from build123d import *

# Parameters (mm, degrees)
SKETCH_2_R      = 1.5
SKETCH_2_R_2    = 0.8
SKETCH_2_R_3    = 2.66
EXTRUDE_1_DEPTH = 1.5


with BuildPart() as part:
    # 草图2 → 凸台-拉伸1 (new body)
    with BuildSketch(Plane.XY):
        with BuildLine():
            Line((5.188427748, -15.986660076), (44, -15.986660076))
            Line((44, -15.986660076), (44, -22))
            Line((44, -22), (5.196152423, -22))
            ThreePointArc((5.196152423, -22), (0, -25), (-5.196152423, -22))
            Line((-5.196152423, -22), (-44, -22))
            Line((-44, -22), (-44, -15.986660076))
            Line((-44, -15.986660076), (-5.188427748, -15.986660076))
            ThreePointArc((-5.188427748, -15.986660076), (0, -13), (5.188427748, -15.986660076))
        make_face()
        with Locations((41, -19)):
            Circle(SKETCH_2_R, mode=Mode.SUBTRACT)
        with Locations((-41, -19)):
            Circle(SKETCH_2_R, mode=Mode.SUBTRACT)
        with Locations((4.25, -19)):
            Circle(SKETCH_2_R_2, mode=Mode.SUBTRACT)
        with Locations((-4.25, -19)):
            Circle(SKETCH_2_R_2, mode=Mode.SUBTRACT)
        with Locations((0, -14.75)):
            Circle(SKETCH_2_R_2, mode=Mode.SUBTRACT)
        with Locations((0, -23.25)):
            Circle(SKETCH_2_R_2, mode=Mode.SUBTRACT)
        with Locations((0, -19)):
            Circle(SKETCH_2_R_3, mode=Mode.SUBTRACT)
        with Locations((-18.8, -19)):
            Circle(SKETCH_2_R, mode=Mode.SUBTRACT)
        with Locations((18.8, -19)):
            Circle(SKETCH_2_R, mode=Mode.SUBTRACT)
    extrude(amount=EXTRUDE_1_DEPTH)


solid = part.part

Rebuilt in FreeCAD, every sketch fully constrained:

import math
import FreeCAD as App
import Part
import Sketcher

V = App.Vector

doc = App.newDocument("Part")
body = doc.addObject("PartDesign::Body", "Body")

# Sketch on XY plane
sketch1 = body.newObject("Sketcher::SketchObject", "Sketch")
sketch1.AttachmentSupport = (doc.getObject("XY_Plane"), [""])
sketch1.MapMode = "FlatFace"
sketch1.addGeometry([
    Part.LineSegment(V(44, -16, 0), V(5.2, -16, 0)),  # 0
    Part.ArcOfCircle(Part.Circle(V(0, -19, 0), V(0, 0, 1), 6), math.radians(30), math.radians(150)),  # 1
    Part.LineSegment(V(-5.2, -16, 0), V(-44, -16, 0)),  # 2
    Part.LineSegment(V(-44, -16, 0), V(-44, -22, 0)),  # 3
    Part.LineSegment(V(-44, -22, 0), V(-5.2, -22, 0)),  # 4
    Part.ArcOfCircle(Part.Circle(V(0, -19, 0), V(0, 0, 1), 6), math.radians(-150), math.radians(-30)),  # 5
    Part.LineSegment(V(5.2, -22, 0), V(44, -22, 0)),  # 6
    Part.LineSegment(V(44, -22, 0), V(44, -16, 0)),  # 7
    Part.Circle(V(0, -23.2, 0), V(0, 0, 1), 0.8),  # 8
    Part.Circle(V(41, -19, 0), V(0, 0, 1), 1.5),  # 9
    Part.Circle(V(18.8, -19, 0), V(0, 0, 1), 1.5),  # 10
    Part.Circle(V(4.2, -19, 0), V(0, 0, 1), 0.8),  # 11
    Part.Circle(V(0, -19, 0), V(0, 0, 1), 2.7),  # 12
    Part.Circle(V(-4.2, -19, 0), V(0, 0, 1), 0.8),  # 13
    Part.Circle(V(-18.8, -19, 0), V(0, 0, 1), 1.5),  # 14
    Part.Circle(V(-41, -19, 0), V(0, 0, 1), 1.5),  # 15
    Part.Circle(V(0, -14.8, 0), V(0, 0, 1), 0.8),  # 16
], False)
sketch1.addConstraint([
    Sketcher.Constraint("Coincident", 0, 2, 1, 1),
    Sketcher.Constraint("Coincident", 1, 2, 2, 1),
    Sketcher.Constraint("Coincident", 2, 2, 3, 1),
    Sketcher.Constraint("Coincident", 3, 2, 4, 1),
    Sketcher.Constraint("Coincident", 4, 2, 5, 1),
    Sketcher.Constraint("Coincident", 5, 2, 6, 1),
    Sketcher.Constraint("Coincident", 6, 2, 7, 1),
    Sketcher.Constraint("Coincident", 7, 2, 0, 1),
    Sketcher.Constraint("Horizontal", 0),
    Sketcher.Constraint("Horizontal", 2),
    Sketcher.Constraint("Vertical", 3),
    Sketcher.Constraint("Horizontal", 4),
    Sketcher.Constraint("Horizontal", 6),
    Sketcher.Constraint("Vertical", 7),
    Sketcher.Constraint("Coincident", 5, 3, 1, 3),
    Sketcher.Constraint("Coincident", 12, 3, 1, 3),
    Sketcher.Constraint("Equal", 1, 5),
    Sketcher.Constraint("Equal", 9, 10),
    Sketcher.Constraint("Equal", 8, 11),
    Sketcher.Constraint("Equal", 11, 13),
    Sketcher.Constraint("Equal", 10, 14),
    Sketcher.Constraint("Equal", 14, 15),
    Sketcher.Constraint("Equal", 13, 16),
    Sketcher.Constraint("Symmetric", 11, 3, 13, 3, -2),
    Sketcher.Constraint("Symmetric", 10, 3, 14, 3, -2),
    Sketcher.Constraint("Symmetric", 9, 3, 15, 3, -2),
    Sketcher.Constraint("Symmetric", 0, 2, 1, 2, -2),
    Sketcher.Constraint("Symmetric", 3, 2, 6, 2, -2),
    Sketcher.Constraint("PointOnObject", 8, 3, -2),
    Sketcher.Constraint("PointOnObject", 16, 3, -2),
    Sketcher.Constraint("Horizontal", 5, 3, 9, 3),
    Sketcher.Constraint("Horizontal", 9, 3, 10, 3),
    Sketcher.Constraint("Horizontal", 10, 3, 11, 3),
    Sketcher.Constraint("Diameter", 9, 3.0),
    Sketcher.Constraint("Radius", 1, 6.0),
    Sketcher.Constraint("Diameter", 8, 1.6),
    Sketcher.Constraint("Diameter", 12, 5.32),
    Sketcher.Constraint("DistanceY", 1, 3, -1, 1, 19.0),
    Sketcher.Constraint("DistanceX", -1, 1, 9, 3, 41.0),
    Sketcher.Constraint("DistanceX", 2, 2, -1, 1, 44.0),
    Sketcher.Constraint("DistanceY", 3, 2, -1, 1, 22.0),
    Sketcher.Constraint("DistanceX", -1, 1, 10, 3, 18.8),
    Sketcher.Constraint("DistanceX", 13, 3, 11, 3, 8.5),
    Sketcher.Constraint("DistanceY", 8, 3, -1, 1, 23.25),
    Sketcher.Constraint("DistanceY", 16, 3, -1, 1, 14.75),
    Sketcher.Constraint("DistanceY", 3, 2, 3, 1, 6.01334),
])
pad1 = body.newObject("PartDesign::Pad", "Pad")
pad1.Profile = sketch1
pad1.Length = 1.5

doc.recompute()
